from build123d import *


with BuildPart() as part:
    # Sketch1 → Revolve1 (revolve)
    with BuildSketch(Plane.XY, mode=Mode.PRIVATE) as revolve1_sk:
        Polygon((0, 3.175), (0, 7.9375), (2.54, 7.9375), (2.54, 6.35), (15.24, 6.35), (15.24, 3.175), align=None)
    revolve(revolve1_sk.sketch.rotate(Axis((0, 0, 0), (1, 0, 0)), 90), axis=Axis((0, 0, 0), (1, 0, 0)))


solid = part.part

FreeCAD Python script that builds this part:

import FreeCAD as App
import Part
import Sketcher
Q = App.Units.Quantity

doc = App.newDocument("Part")
body = doc.addObject("PartDesign::Body", "Body")

sketch1 = body.newObject("Sketcher::SketchObject", "Sketch")
sketch1.AttachmentSupport = (doc.getObject("XY_Plane"), [""])
sketch1.MapMode = "FlatFace"
sketch1.addGeometry([
    Part.LineSegment(App.Vector(0, 7.9, 0), App.Vector(0, 3.2, 0)),
    Part.LineSegment(App.Vector(0, 3.2, 0), App.Vector(15.2, 3.2, 0)),
    Part.LineSegment(App.Vector(15.2, 3.2, 0), App.Vector(15.2, 6.3, 0)),
    Part.LineSegment(App.Vector(15.2, 6.3, 0), App.Vector(2.5, 6.3, 0)),
    Part.LineSegment(App.Vector(2.5, 6.3, 0), App.Vector(2.5, 7.9, 0)),
    Part.LineSegment(App.Vector(2.5, 7.9, 0), App.Vector(0, 7.9, 0)),
], False)
sketch1.addConstraint([
    Sketcher.Constraint("Coincident", 0, 2, 1, 1),
    Sketcher.Constraint("Coincident", 1, 2, 2, 1),
    Sketcher.Constraint("Coincident", 2, 2, 3, 1),
    Sketcher.Constraint("Coincident", 3, 2, 4, 1),
    Sketcher.Constraint("Coincident", 4, 2, 5, 1),
    Sketcher.Constraint("Coincident", 5, 2, 0, 1),
    Sketcher.Constraint("Vertical", 0),
    Sketcher.Constraint("Horizontal", 1),
    Sketcher.Constraint("Vertical", 2),
    Sketcher.Constraint("Horizontal", 3),
    Sketcher.Constraint("Vertical", 4),
    Sketcher.Constraint("Horizontal", 5),
    Sketcher.Constraint("PointOnObject", 0, 2, -2),
    Sketcher.Constraint("DistanceX", 1, 1, 1, 2, Q("0.6 in")),
    Sketcher.Constraint("DistanceX", 3, 2, 3, 1, Q("0.5 in")),
    Sketcher.Constraint("DistanceY", 0, 2, 0, 1, Q("0.1875 in")),
    Sketcher.Constraint("DistanceY", 2, 1, 2, 2, Q("0.125 in")),
    Sketcher.Constraint("DistanceY", -1, 1, 2, 2, Q("0.25 in")),
])
revolution = body.newObject("PartDesign::Revolution", "Revolution")
revolution.Profile = sketch1
revolution.ReferenceAxis = (sketch1, ["H_Axis"])
revolution.Angle = 360

doc.recompute()
